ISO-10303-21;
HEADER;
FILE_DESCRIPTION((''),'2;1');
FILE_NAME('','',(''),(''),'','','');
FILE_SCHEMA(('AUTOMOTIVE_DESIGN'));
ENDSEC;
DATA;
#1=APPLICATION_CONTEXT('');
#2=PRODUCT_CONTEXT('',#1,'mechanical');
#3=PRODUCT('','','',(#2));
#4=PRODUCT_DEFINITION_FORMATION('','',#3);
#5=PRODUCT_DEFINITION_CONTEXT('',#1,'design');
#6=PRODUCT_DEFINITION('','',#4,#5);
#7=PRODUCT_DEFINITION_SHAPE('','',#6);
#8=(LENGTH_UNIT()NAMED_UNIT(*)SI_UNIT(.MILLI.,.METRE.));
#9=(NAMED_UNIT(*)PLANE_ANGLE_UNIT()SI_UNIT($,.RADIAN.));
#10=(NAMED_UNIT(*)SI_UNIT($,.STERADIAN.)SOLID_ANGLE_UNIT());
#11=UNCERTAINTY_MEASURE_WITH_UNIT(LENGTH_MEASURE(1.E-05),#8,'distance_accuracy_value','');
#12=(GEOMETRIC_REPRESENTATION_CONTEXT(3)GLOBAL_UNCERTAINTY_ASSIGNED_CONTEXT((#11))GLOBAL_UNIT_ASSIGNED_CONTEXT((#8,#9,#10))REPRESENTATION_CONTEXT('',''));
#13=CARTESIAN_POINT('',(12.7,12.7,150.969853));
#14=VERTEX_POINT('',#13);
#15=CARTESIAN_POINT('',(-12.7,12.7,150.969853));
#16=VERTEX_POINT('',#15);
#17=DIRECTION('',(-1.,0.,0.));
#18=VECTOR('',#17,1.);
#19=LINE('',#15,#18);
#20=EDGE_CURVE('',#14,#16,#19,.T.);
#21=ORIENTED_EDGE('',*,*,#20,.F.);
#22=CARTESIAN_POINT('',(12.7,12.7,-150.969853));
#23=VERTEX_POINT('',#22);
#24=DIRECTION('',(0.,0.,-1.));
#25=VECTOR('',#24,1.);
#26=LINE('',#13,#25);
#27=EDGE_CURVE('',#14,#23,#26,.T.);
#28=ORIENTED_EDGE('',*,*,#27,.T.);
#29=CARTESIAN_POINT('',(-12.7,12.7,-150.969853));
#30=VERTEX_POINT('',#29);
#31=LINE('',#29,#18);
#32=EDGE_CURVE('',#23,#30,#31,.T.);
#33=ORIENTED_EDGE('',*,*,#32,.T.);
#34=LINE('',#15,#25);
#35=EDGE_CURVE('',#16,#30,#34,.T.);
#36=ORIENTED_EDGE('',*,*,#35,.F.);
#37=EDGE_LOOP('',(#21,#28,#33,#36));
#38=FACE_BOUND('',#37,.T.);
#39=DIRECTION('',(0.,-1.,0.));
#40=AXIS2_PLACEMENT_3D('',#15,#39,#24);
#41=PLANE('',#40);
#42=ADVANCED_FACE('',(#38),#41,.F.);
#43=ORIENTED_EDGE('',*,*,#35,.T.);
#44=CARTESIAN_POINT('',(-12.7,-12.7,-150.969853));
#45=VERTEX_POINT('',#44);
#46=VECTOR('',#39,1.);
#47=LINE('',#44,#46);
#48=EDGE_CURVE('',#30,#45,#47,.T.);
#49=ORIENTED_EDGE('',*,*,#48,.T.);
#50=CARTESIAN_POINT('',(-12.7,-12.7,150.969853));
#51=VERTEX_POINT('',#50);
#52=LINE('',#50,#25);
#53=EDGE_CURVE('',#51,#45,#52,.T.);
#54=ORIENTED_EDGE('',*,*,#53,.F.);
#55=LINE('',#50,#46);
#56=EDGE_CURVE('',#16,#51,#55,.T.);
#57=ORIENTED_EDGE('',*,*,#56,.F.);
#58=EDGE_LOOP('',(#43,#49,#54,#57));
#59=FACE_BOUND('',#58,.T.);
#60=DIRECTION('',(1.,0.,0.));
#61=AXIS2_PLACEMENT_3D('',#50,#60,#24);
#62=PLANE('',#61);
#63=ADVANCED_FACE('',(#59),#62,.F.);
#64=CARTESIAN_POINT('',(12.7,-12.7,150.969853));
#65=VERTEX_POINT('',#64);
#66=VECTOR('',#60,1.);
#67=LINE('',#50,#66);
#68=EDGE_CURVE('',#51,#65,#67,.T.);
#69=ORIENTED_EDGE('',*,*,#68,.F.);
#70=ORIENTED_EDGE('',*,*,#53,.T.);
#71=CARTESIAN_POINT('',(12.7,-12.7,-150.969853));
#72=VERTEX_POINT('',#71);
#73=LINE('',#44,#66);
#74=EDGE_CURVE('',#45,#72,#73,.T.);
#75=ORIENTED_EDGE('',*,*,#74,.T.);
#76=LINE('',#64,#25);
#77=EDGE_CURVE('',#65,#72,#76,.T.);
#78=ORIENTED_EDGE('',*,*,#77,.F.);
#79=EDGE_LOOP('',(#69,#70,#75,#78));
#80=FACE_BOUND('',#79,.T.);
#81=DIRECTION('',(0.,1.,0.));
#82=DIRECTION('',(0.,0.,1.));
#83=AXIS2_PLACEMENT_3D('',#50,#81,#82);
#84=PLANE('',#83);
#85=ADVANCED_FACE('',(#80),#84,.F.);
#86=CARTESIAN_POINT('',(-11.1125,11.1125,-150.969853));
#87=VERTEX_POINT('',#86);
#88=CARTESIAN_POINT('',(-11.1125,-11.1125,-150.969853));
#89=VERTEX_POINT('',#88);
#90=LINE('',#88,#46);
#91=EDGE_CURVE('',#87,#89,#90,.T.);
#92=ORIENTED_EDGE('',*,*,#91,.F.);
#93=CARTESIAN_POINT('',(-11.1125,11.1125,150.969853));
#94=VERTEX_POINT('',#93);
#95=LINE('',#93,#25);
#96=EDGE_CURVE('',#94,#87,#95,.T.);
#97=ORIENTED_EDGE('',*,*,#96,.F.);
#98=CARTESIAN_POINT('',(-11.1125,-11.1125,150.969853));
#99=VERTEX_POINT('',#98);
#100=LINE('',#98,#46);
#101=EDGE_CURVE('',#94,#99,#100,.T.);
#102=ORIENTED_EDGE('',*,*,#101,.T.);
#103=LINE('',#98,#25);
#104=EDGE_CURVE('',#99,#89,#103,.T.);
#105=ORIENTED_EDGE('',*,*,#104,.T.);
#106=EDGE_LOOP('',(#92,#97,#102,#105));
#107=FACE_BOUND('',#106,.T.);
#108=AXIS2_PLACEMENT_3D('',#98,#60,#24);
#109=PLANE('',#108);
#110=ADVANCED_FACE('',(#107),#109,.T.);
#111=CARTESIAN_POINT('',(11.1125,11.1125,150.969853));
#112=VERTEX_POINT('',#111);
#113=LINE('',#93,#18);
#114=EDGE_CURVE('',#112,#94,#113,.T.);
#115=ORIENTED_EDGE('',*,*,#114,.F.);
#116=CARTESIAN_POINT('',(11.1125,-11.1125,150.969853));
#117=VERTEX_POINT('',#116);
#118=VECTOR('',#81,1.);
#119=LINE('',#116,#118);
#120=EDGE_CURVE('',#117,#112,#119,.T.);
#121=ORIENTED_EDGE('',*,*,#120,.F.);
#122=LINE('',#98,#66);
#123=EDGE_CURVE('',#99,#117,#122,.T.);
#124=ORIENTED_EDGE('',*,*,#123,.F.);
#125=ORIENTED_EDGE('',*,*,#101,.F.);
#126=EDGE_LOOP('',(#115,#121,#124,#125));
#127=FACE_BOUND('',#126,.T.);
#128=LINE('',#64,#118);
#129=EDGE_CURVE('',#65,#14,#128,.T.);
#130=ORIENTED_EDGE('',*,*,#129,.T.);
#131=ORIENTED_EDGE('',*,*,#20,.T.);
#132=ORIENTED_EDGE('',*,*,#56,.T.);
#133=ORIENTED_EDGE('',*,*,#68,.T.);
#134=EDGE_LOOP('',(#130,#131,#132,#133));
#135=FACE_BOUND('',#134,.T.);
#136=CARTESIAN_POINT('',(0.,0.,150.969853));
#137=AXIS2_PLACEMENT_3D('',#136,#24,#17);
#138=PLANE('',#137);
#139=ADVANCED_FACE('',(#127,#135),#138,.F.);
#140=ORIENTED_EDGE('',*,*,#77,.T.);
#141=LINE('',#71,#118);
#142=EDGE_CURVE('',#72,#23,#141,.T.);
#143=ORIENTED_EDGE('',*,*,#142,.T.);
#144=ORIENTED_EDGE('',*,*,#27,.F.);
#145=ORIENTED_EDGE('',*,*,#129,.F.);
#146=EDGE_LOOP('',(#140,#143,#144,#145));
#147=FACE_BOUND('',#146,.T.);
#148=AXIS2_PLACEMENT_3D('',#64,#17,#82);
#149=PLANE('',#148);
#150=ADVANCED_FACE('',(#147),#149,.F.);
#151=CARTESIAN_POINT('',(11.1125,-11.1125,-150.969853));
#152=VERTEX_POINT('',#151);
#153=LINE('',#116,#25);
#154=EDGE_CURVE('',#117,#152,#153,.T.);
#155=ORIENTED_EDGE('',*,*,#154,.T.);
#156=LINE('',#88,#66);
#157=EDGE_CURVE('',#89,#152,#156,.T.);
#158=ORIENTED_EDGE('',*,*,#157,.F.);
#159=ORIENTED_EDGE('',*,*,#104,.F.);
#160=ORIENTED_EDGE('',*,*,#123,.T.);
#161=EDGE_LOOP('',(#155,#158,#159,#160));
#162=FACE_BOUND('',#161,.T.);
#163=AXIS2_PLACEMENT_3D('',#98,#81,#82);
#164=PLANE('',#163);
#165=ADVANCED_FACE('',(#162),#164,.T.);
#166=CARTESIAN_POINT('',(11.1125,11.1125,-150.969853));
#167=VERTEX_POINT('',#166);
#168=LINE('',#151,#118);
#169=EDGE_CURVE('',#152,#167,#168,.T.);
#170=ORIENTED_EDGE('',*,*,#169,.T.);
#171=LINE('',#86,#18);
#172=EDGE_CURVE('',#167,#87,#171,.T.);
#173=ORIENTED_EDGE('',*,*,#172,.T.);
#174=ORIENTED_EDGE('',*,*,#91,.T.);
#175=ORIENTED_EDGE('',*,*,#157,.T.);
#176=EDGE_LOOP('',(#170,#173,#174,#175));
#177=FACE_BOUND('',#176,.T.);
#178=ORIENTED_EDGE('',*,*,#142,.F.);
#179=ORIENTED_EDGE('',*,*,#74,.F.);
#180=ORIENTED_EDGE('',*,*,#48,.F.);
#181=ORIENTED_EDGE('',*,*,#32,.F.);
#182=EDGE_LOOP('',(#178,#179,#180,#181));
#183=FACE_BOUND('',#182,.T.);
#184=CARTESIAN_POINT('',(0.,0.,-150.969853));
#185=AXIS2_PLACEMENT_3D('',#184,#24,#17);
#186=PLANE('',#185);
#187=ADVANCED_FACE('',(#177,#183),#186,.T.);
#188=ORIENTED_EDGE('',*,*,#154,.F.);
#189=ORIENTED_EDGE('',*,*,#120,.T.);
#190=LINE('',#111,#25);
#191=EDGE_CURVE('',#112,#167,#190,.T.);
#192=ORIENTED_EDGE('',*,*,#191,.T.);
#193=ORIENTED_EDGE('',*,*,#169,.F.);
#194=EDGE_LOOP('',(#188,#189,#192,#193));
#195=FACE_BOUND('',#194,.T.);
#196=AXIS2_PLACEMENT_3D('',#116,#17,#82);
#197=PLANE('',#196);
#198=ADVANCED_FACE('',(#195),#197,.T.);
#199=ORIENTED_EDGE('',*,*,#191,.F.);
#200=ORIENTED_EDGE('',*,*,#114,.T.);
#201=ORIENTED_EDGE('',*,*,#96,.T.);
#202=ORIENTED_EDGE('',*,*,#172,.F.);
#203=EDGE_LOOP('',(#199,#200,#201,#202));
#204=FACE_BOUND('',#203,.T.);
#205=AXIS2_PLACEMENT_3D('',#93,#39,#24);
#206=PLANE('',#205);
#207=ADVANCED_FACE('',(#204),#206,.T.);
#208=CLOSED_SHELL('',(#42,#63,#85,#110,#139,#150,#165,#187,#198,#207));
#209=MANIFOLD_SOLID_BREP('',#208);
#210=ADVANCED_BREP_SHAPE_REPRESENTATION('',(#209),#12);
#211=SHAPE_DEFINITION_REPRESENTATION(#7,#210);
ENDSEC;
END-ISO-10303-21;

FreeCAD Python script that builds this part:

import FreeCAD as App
import Part
import Sketcher

V = App.Vector
Q = App.Units.Quantity

doc = App.newDocument("Part")
body = doc.addObject("PartDesign::Body", "Body")

# Sketch on XY plane
sketch1 = body.newObject("Sketcher::SketchObject", "Sketch")
sketch1.AttachmentSupport = (doc.getObject("XY_Plane"), [""])
sketch1.MapMode = "FlatFace"
sketch1.addGeometry([
    Part.LineSegment(V(-13, 13, 0), V(-13, -13, 0)),  # 0
    Part.LineSegment(V(-13, -13, 0), V(13, -13, 0)),  # 1
    Part.LineSegment(V(13, -13, 0), V(13, 13, 0)),  # 2
    Part.LineSegment(V(13, 13, 0), V(-13, 13, 0)),  # 3
    Part.LineSegment(V(11, -11, 0), V(-11, -11, 0)),  # 4
    Part.LineSegment(V(-11, -11, 0), V(-11, 11, 0)),  # 5
    Part.LineSegment(V(-11, 11, 0), V(11, 11, 0)),  # 6
    Part.LineSegment(V(11, 11, 0), V(11, -11, 0)),  # 7
], False)
sketch1.addConstraint([
    Sketcher.Constraint("Coincident", 0, 2, 1, 1),
    Sketcher.Constraint("Coincident", 1, 2, 2, 1),
    Sketcher.Constraint("Coincident", 2, 2, 3, 1),
    Sketcher.Constraint("Coincident", 3, 2, 0, 1),
    Sketcher.Constraint("Coincident", 4, 2, 5, 1),
    Sketcher.Constraint("Coincident", 5, 2, 6, 1),
    Sketcher.Constraint("Coincident", 6, 2, 7, 1),
    Sketcher.Constraint("Coincident", 7, 2, 4, 1),
    Sketcher.Constraint("Vertical", 0),
    Sketcher.Constraint("Horizontal", 1),
    Sketcher.Constraint("Vertical", 2),
    Sketcher.Constraint("Horizontal", 3),
    Sketcher.Constraint("Horizontal", 4),
    Sketcher.Constraint("Vertical", 5),
    Sketcher.Constraint("Horizontal", 6),
    Sketcher.Constraint("Vertical", 7),
    Sketcher.Constraint("Symmetric", 0, 2, 2, 2, -1, 1),
    Sketcher.Constraint("Symmetric", 4, 2, 6, 2, -1, 1),
    Sketcher.Constraint("Equal", 3, 0),
    Sketcher.Constraint("Equal", 6, 5),
    Sketcher.Constraint("DistanceX", 1, 1, 1, 2, Q("1 in")),
    Sketcher.Constraint("DistanceX", 4, 2, 4, 1, Q("0.875 in")),
])
pad1 = body.newObject("PartDesign::Pad", "Pad")
pad1.Profile = sketch1
pad1.Length = 301.939706
pad1.Midplane = True

doc.recompute()
